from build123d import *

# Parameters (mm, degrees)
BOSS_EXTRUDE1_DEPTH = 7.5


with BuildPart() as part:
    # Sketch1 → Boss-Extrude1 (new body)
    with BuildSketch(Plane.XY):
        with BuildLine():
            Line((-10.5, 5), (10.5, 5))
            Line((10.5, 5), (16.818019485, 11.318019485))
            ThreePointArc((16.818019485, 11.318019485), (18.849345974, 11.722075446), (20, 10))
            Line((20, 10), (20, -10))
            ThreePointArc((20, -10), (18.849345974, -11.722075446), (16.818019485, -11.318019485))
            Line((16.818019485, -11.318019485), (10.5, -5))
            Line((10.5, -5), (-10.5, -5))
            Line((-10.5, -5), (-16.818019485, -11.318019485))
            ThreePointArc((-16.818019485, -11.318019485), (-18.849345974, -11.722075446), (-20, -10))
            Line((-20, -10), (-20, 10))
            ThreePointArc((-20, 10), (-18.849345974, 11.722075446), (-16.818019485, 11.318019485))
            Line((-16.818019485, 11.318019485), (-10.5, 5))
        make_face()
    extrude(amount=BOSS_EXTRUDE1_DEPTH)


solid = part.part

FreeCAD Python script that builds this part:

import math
import FreeCAD as App
import Part
import Sketcher

V = App.Vector

doc = App.newDocument("Part")
body = doc.addObject("PartDesign::Body", "Body")

sketch1 = doc.addObject("Sketcher::SketchObject", "Sketch")
body.addObject(sketch1)
sketch1.AttachmentSupport = (doc.XY_Plane, [""])
sketch1.MapMode = "FlatFace"
sketch1.addGeometry([
    Part.LineSegment(V(10.5, 5, 0), V(-10.5, 5, 0)),
    Part.LineSegment(V(-10.5, 5, 0), V(-16.818019, 11.318019, 0)),
    Part.ArcOfCircle(Part.Circle(V(-18.136039, 10, 0), V(0, 0, 1), 1.863961), math.radians(45), math.radians(180)),
    Part.LineSegment(V(-20, 10, 0), V(-20, -10, 0)),
    Part.ArcOfCircle(Part.Circle(V(-18.136039, -10, 0), V(0, 0, 1), 1.863961), math.radians(180), math.radians(315)),
    Part.LineSegment(V(-16.818019, -11.318019, 0), V(-10.5, -5, 0)),
    Part.LineSegment(V(-10.5, -5, 0), V(10.5, -5, 0)),
    Part.LineSegment(V(10.5, -5, 0), V(16.818019, -11.318019, 0)),
    Part.ArcOfCircle(Part.Circle(V(18.136039, -10, 0), V(0, 0, 1), 1.863961), math.radians(-135), math.radians(0)),
    Part.LineSegment(V(20, -10, 0), V(20, 10, 0)),
    Part.ArcOfCircle(Part.Circle(V(18.136039, 10, 0), V(0, 0, 1), 1.863961), math.radians(0), math.radians(135)),
    Part.LineSegment(V(16.818019, 11.318019, 0), V(10.5, 5, 0)),
], False)
sketch1.addConstraint([
    Sketcher.Constraint("Coincident", 0, 2, 1, 1),
    Sketcher.Constraint("Tangent", 1, 2, 2, 1),
    Sketcher.Constraint("Tangent", 2, 2, 3, 1),
    Sketcher.Constraint("Tangent", 3, 2, 4, 1),
    Sketcher.Constraint("Tangent", 4, 2, 5, 1),
    Sketcher.Constraint("Coincident", 5, 2, 6, 1),
    Sketcher.Constraint("Coincident", 6, 2, 7, 1),
    Sketcher.Constraint("Tangent", 7, 2, 8, 1),
    Sketcher.Constraint("Tangent", 8, 2, 9, 1),
    Sketcher.Constraint("Tangent", 9, 2, 10, 1),
    Sketcher.Constraint("Tangent", 10, 2, 11, 1),
    Sketcher.Constraint("Coincident", 11, 2, 0, 1),
    Sketcher.Constraint("Horizontal", 0),
    Sketcher.Constraint("Vertical", 3),
    Sketcher.Constraint("Horizontal", 6),
    Sketcher.Constraint("Vertical", 9),
    Sketcher.Constraint("Equal", 2, 4),
    Sketcher.Constraint("Equal", 4, 8),
    Sketcher.Constraint("Equal", 8, 10),
    Sketcher.Constraint("Symmetric", 2, 3, 8, 3, -1, 1),
    Sketcher.Constraint("Symmetric", 0, 2, 6, 2, -1, 1),
    Sketcher.Constraint("Symmetric", 4, 2, 10, 2, -1, 1),
    Sketcher.Constraint("Symmetric", 4, 2, 7, 2, -2),
    Sketcher.Constraint("Perpendicular", 1, 5),
    Sketcher.Constraint("DistanceX", 0, 2, 0, 1, 21.0),
    Sketcher.Constraint("DistanceY", 3, 2, 3, 1, 20.0),
    Sketcher.Constraint("DistanceY", -1, 1, 0, 2, 5.0),
    Sketcher.Constraint("DistanceX", 2, 2, -1, 1, 20.0),
])
pad1 = doc.addObject("PartDesign::Pad", "Pad")
body.addObject(pad1)
pad1.Profile = sketch1
pad1.Length = 7.5

doc.recompute()
